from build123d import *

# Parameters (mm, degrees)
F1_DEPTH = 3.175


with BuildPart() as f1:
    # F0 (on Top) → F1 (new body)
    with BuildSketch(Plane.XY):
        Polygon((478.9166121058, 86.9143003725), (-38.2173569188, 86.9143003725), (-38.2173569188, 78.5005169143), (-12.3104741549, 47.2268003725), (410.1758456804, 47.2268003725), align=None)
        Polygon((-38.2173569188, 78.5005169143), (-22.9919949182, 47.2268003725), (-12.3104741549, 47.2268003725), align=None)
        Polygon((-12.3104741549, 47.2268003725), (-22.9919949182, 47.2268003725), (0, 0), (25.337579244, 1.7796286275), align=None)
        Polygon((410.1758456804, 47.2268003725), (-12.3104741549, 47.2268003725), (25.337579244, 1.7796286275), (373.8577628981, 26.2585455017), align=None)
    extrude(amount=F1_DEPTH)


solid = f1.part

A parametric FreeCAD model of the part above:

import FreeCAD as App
import Part
import Sketcher
Q = App.Units.Quantity


def add_polygon(sketch, points):
    """Adds a closed chain of lines whose ends are joined by coincident constraints."""
    first, n = sketch.GeometryCount, len(points)
    for a, b in zip(points, points[1:] + points[:1]):
        sketch.addGeometry(Part.LineSegment(App.Vector(*a, 0), App.Vector(*b, 0)), False)
    for i in range(n):
        sketch.addConstraint(Sketcher.Constraint("Coincident", first + i, 2, first + (i + 1) % n, 1))

doc = App.newDocument("Part")
body = doc.addObject("PartDesign::Body", "Body")

sketch1 = doc.addObject("Sketcher::SketchObject", "Sketch")
body.addObject(sketch1)
sketch1.AttachmentSupport = (doc.XY_Plane, [""])
sketch1.MapMode = "FlatFace"
add_polygon(sketch1, [(479, 87), (-38, 87), (-38, 79), (0, 0), (25, 2), (374, 26)])
sketch1.addConstraint(Sketcher.Constraint("Horizontal", 0))
sketch1.addConstraint(Sketcher.Constraint("Vertical", 1))
sketch1.addConstraint(Sketcher.Constraint("Coincident", 2, 2, -1, 1))
sketch1.addConstraint(Sketcher.Constraint("Parallel", 3, 4))
sketch1.addConstraint(Sketcher.Constraint("Distance", 3, Q("1 in")))
sketch1.addConstraint(Sketcher.Constraint("Angle", 5, Q("30 deg")))
sketch1.addConstraint(Sketcher.Constraint("DistanceX", 0, 2, 0, 1, 517.133969))
sketch1.addConstraint(Sketcher.Constraint("DistanceY", -1, 1, 0, 2, 86.9143))
sketch1.addConstraint(Sketcher.Constraint("Distance", 5, 121.31151))
sketch1.addConstraint(Sketcher.Constraint("DistanceY", 1, 2, 1, 1, 8.413783))
sketch1.addConstraint(Sketcher.Constraint("Distance", 2, 87.309206))
pad1 = doc.addObject("PartDesign::Pad", "Pad")
body.addObject(pad1)
pad1.Profile = sketch1
pad1.Length = Q("0.125 in")

doc.recompute()
